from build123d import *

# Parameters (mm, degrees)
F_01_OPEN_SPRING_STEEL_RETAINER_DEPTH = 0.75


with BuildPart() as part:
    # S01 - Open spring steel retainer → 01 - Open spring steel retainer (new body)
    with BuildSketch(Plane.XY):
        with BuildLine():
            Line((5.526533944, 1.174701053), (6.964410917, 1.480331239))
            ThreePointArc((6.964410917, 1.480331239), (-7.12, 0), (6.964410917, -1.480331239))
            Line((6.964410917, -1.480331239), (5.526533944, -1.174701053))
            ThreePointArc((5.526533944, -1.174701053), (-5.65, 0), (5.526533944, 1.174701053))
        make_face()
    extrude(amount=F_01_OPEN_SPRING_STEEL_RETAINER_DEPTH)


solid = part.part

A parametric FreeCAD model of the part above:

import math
import FreeCAD as App
import Part
import Sketcher

V = App.Vector
Q = App.Units.Quantity

doc = App.newDocument("Part")
body = doc.addObject("PartDesign::Body", "Body")

# Sketch on XY plane
sketch1 = body.newObject("Sketcher::SketchObject", "Sketch")
sketch1.AttachmentSupport = (doc.getObject("XY_Plane"), [""])
sketch1.MapMode = "FlatFace"
sketch1.addGeometry([
    Part.LineSegment(V(5.5, 1.2, 0), V(7, 1.5, 0)),
    Part.ArcOfCircle(Part.Circle(V(0, 0, 0), V(0, 0, 1), 7.1), math.radians(12), math.radians(348)),
    Part.LineSegment(V(7, -1.5, 0), V(5.5, -1.2, 0)),
    Part.ArcOfCircle(Part.Circle(V(0, 0, 0), V(0, 0, 1), 5.7), math.radians(12), math.radians(348)),
], False)
sketch1.addConstraint([
    Sketcher.Constraint("Coincident", 0, 2, 1, 1),
    Sketcher.Constraint("Coincident", 1, 2, 2, 1),
    Sketcher.Constraint("Coincident", 2, 2, 3, 2),
    Sketcher.Constraint("Coincident", 3, 1, 0, 1),
    Sketcher.Constraint("Coincident", 1, 3, -1, 1),
    Sketcher.Constraint("Coincident", 3, 3, -1, 1),
    Sketcher.Constraint("Vertical", 0, 2, 1, 2),
    Sketcher.Constraint("Vertical", 2, 2, 3, 1),
    Sketcher.Constraint("Angle", 0, Q("12 deg")),
    Sketcher.Constraint("Radius", 1, 7.12),
    Sketcher.Constraint("Radius", 3, 5.65),
    Sketcher.Constraint("DistanceY", 2, 2, -1, 1, 1.174701),
])
pad1 = body.newObject("PartDesign::Pad", "Pad")
pad1.Profile = sketch1
pad1.Length = 0.75

doc.recompute()
